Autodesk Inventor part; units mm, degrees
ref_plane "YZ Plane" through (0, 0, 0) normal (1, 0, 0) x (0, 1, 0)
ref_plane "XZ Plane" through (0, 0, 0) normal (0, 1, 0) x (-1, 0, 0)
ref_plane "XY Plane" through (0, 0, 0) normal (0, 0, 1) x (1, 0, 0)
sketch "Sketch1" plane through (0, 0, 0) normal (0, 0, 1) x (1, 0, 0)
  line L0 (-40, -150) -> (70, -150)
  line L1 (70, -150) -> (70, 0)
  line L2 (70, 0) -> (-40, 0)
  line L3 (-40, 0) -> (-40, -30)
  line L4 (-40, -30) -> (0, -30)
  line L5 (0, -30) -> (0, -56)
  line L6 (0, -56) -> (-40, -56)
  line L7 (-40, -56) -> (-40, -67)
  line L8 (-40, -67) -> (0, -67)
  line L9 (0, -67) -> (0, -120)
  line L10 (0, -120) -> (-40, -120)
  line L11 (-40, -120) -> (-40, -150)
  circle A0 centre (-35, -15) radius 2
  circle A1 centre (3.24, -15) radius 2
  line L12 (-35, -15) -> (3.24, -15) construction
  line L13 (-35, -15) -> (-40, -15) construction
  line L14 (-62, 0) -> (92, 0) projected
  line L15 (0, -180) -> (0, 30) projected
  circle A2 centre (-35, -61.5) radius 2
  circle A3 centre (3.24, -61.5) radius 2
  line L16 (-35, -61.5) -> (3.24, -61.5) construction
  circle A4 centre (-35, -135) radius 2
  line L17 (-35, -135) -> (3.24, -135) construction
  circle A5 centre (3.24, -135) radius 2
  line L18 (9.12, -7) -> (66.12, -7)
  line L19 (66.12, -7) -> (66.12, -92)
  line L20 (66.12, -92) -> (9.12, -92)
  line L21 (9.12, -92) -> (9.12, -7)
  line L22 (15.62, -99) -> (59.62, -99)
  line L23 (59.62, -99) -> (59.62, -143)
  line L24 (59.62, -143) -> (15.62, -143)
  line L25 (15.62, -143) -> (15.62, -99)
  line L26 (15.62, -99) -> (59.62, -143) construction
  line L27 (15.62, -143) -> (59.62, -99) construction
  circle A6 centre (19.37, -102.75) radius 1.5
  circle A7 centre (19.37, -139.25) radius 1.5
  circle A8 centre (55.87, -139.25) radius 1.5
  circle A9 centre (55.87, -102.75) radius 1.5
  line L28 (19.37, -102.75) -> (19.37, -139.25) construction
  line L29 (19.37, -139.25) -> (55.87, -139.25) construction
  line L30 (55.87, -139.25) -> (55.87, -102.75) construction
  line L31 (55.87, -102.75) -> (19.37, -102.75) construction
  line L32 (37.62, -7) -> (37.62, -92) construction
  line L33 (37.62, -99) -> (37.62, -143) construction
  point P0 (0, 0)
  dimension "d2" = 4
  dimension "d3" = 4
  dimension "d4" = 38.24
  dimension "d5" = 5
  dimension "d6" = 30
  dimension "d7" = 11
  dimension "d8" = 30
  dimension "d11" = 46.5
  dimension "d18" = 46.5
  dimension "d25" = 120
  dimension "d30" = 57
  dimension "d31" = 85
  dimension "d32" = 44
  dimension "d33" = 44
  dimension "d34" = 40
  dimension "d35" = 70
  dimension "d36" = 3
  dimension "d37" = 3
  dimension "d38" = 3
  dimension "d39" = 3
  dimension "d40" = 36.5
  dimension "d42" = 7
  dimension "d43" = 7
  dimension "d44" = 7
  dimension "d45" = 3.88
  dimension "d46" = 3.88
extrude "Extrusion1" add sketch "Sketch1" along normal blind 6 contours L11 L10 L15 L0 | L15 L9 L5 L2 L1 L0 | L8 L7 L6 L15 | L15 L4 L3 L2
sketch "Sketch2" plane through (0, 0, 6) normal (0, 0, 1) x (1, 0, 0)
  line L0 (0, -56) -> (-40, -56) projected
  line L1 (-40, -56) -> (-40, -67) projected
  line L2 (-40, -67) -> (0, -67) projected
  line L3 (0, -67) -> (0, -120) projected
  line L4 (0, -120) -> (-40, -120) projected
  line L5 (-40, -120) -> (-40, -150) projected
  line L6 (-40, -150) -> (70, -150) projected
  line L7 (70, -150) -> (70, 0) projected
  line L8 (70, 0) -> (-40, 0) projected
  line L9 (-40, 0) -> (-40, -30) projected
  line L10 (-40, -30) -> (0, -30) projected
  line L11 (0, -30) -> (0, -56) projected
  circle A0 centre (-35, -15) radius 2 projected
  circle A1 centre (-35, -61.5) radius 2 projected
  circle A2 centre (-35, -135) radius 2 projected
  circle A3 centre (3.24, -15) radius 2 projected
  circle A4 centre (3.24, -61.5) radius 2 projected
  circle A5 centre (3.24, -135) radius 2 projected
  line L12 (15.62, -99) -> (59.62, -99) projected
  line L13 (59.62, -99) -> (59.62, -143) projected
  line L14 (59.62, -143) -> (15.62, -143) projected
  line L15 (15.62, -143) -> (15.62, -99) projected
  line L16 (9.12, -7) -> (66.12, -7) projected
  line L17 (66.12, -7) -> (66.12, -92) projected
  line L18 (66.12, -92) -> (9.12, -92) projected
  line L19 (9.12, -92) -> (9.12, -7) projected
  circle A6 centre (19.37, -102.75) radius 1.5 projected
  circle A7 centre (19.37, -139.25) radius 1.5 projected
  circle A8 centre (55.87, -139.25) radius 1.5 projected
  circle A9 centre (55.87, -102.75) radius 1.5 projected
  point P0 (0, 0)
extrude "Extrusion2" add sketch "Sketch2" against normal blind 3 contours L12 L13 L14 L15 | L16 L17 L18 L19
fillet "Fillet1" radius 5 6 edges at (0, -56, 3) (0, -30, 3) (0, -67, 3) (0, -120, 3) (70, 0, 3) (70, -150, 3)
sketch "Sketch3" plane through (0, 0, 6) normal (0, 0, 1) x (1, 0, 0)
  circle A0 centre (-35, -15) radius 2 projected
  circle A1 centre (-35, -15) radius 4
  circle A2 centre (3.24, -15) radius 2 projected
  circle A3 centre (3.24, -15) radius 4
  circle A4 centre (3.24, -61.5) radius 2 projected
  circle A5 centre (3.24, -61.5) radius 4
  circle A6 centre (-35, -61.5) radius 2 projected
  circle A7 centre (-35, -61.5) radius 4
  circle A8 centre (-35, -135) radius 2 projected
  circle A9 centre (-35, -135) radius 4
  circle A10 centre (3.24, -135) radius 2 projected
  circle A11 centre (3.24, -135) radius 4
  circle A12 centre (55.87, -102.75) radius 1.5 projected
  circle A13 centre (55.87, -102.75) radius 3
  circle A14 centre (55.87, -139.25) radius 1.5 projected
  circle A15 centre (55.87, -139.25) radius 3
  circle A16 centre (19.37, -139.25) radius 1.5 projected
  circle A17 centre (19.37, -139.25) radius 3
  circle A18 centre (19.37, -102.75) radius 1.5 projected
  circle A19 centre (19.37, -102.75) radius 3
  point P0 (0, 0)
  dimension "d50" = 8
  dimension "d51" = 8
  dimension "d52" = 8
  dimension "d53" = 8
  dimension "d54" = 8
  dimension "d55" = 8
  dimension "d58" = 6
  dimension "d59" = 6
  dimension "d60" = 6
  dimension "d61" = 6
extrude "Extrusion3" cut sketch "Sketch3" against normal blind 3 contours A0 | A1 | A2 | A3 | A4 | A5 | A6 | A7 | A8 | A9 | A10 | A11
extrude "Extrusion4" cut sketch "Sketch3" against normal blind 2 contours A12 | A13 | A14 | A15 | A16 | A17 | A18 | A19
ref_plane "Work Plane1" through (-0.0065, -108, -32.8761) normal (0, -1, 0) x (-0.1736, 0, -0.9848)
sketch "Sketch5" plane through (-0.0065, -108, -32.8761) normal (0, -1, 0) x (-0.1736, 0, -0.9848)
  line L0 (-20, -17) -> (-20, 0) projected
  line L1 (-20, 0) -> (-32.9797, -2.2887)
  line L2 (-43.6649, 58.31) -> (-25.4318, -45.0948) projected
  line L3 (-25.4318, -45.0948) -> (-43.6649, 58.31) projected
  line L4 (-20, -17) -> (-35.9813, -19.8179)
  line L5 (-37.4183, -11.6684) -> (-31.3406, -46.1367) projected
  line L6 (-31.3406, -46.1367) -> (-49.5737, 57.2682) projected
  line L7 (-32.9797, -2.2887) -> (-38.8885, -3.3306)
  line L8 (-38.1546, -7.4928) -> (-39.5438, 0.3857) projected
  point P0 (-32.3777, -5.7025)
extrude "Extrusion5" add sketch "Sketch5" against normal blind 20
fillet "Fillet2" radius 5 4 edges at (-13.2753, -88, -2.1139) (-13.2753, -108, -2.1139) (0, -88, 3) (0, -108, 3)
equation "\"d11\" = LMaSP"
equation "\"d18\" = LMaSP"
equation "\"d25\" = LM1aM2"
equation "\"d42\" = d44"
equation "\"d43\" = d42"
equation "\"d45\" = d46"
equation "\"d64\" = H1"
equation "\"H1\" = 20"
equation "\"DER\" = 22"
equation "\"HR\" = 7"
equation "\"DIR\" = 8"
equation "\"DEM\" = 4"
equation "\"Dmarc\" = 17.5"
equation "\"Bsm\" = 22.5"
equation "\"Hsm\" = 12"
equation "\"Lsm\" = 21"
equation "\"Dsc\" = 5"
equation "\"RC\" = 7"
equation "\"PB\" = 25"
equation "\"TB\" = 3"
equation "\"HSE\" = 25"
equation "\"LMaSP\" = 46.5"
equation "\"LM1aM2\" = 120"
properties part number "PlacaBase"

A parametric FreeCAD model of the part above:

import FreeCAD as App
import Part
import Sketcher
Q = App.Units.Quantity


def edges_at(feature, points):
    """Names of the edges that pass closest to the given points."""
    edges = feature.Shape.Edges
    near = lambda p: min(range(len(edges)), key=lambda i: edges[i].distToShape(Part.Vertex(*p))[0])
    return sorted({f"Edge{near(p) + 1}" for p in points})


def add_polygon(sketch, points):
    """Adds a closed chain of lines whose ends are joined by coincident constraints."""
    first, n = sketch.GeometryCount, len(points)
    for a, b in zip(points, points[1:] + points[:1]):
        sketch.addGeometry(Part.LineSegment(App.Vector(*a, 0), App.Vector(*b, 0)), False)
    for i in range(n):
        sketch.addConstraint(Sketcher.Constraint("Coincident", first + i, 2, first + (i + 1) % n, 1))

doc = App.newDocument("Part")
body = doc.addObject("PartDesign::Body", "Body")

# Sketch on XY plane
sketch1 = body.newObject("Sketcher::SketchObject", "Sketch")
sketch1.AttachmentSupport = (doc.getObject("XY_Plane"), [""])
sketch1.MapMode = "FlatFace"
add_polygon(sketch1, [(-40, -120), (-40, -150), (70, -150), (70, 0), (-40, 0), (-40, -30), (0, -30), (0, -56), (-40, -56), (-40, -67), (0, -67), (0, -120)])  # lines 0-11
sketch1.addGeometry(Part.Circle(App.Vector(-35, -135, 0), App.Vector(0, 0, 1), 2), False)  # 12
add_polygon(sketch1, [(9.12, -7), (66.12, -7), (66.12, -92), (9.12, -92)])  # lines 13-16
sketch1.addGeometry(Part.Circle(App.Vector(3.24, -135, 0), App.Vector(0, 0, 1), 2), False)  # 17
add_polygon(sketch1, [(15.62, -143), (15.62, -99), (59.62, -99), (59.62, -143)])  # lines 18-21
sketch1.addGeometry(Part.Circle(App.Vector(3.24, -61.5, 0), App.Vector(0, 0, 1), 2), False)  # 22
sketch1.addGeometry(Part.Circle(App.Vector(3.24, -15, 0), App.Vector(0, 0, 1), 2), False)  # 23
sketch1.addGeometry(Part.Circle(App.Vector(-35, -61.5, 0), App.Vector(0, 0, 1), 2), False)  # 24
sketch1.addGeometry(Part.Circle(App.Vector(-35, -15, 0), App.Vector(0, 0, 1), 2), False)  # 25
sketch1.addConstraint([
    Sketcher.Constraint("Vertical", 0),
    Sketcher.Constraint("Horizontal", 1),
    Sketcher.Constraint("Vertical", 2),
    Sketcher.Constraint("Horizontal", 3),
    Sketcher.Constraint("Vertical", 4),
    Sketcher.Constraint("Horizontal", 5),
    Sketcher.Constraint("Vertical", 6),
    Sketcher.Constraint("Horizontal", 7),
    Sketcher.Constraint("Vertical", 8),
    Sketcher.Constraint("Horizontal", 9),
    Sketcher.Constraint("Vertical", 10),
    Sketcher.Constraint("Horizontal", 11),
    Sketcher.Constraint("Horizontal", 13),
    Sketcher.Constraint("Vertical", 14),
    Sketcher.Constraint("Horizontal", 15),
    Sketcher.Constraint("Vertical", 16),
    Sketcher.Constraint("Vertical", 18),
    Sketcher.Constraint("Horizontal", 19),
    Sketcher.Constraint("Vertical", 20),
    Sketcher.Constraint("Horizontal", 21),
    Sketcher.Constraint("Equal", 12, 17),
    Sketcher.Constraint("Equal", 17, 22),
    Sketcher.Constraint("Equal", 22, 23),
    Sketcher.Constraint("Equal", 23, 24),
    Sketcher.Constraint("Equal", 24, 25),
    Sketcher.Constraint("PointOnObject", 2, 2, -1),
    Sketcher.Constraint("PointOnObject", 5, 2, -2),
    Sketcher.Constraint("PointOnObject", 9, 2, -2),
    Sketcher.Constraint("Horizontal", 12, 3, 17, 3),
    Sketcher.Constraint("Horizontal", 22, 3, 24, 3),
    Sketcher.Constraint("Horizontal", 23, 3, 25, 3),
    Sketcher.Constraint("Vertical", 17, 3, 22, 3),
    Sketcher.Constraint("Vertical", 22, 3, 23, 3),
    Sketcher.Constraint("Vertical", 12, 3, 24, 3),
    Sketcher.Constraint("Vertical", 24, 3, 25, 3),
    Sketcher.Constraint("Vertical", 0, 2, 3, 2),
    Sketcher.Constraint("Vertical", 4, 2, 7, 2),
    Sketcher.Constraint("Equal", 0, 4),
    Sketcher.Constraint("Equal", 21, 18),
    Sketcher.Constraint("Diameter", 12, 4.0),
    Sketcher.Constraint("DistanceX", 5, 1, 5, 2, 40.0),
    Sketcher.Constraint("DistanceX", 13, 1, 13, 2, 57.0),
    Sketcher.Constraint("DistanceX", 19, 1, 19, 2, 44.0),
    Sketcher.Constraint("DistanceY", 0, 2, 0, 1, 30.0),
    Sketcher.Constraint("DistanceY", 8, 2, 8, 1, 11.0),
    Sketcher.Constraint("DistanceY", 14, 2, 14, 1, 85.0),
    Sketcher.Constraint("DistanceX", -1, 1, 1, 2, 70.0),
    Sketcher.Constraint("DistanceY", 10, 2, -1, 1, 120.0),
    Sketcher.Constraint("DistanceY", 13, 2, -1, 1, 7.0),
    Sketcher.Constraint("DistanceY", 17, 3, 23, 3, 120.0),
    Sketcher.Constraint("DistanceX", 0, 2, 12, 3, 5.0),
    Sketcher.Constraint("DistanceY", 18, 2, 15, 2, 7.0),
    Sketcher.Constraint("DistanceY", 22, 3, 23, 3, 46.5),
    Sketcher.Constraint("DistanceY", 6, 2, 6, 1, 26.0),
    Sketcher.Constraint("DistanceX", 12, 3, 17, 3, 38.24),
    Sketcher.Constraint("DistanceX", 13, 2, 2, 2, 3.88),
    Sketcher.Constraint("DistanceY", 12, 3, -1, 1, 135.0),
    Sketcher.Constraint("DistanceX", 15, 2, 18, 2, 6.5),
])
pad1 = body.newObject("PartDesign::Pad", "Pad")
pad1.Profile = sketch1
pad1.Length = 6

# Sketch on XY plane
sketch2 = body.newObject("Sketcher::SketchObject", "Sketch001")
sketch2.AttachmentSupport = (doc.getObject("XY_Plane"), [""])
sketch2.MapMode = "FlatFace"
sketch2.AttachmentOffset = App.Placement(App.Vector(0, 0, 6), App.Rotation())
add_polygon(sketch2, [(59.62, -99), (15.62, -99), (15.62, -143), (59.62, -143)])  # lines 0-3
sketch2.addGeometry(Part.Circle(App.Vector(19.37, -139.25, 0), App.Vector(0, 0, 1), 1.5), False)  # 4
sketch2.addGeometry(Part.Circle(App.Vector(55.87, -139.25, 0), App.Vector(0, 0, 1), 1.5), False)  # 5
sketch2.addGeometry(Part.Circle(App.Vector(19.37, -102.75, 0), App.Vector(0, 0, 1), 1.5), False)  # 6
sketch2.addGeometry(Part.Circle(App.Vector(55.87, -102.75, 0), App.Vector(0, 0, 1), 1.5), False)  # 7
add_polygon(sketch2, [(66.12, -7), (9.12, -7), (9.12, -92), (66.12, -92)])  # lines 8-11
sketch2.addConstraint([
    Sketcher.Constraint("Horizontal", 0),
    Sketcher.Constraint("Vertical", 1),
    Sketcher.Constraint("Horizontal", 2),
    Sketcher.Constraint("Vertical", 3),
    Sketcher.Constraint("Horizontal", 8),
    Sketcher.Constraint("Vertical", 9),
    Sketcher.Constraint("Horizontal", 10),
    Sketcher.Constraint("Vertical", 11),
    Sketcher.Constraint("Equal", 4, 5),
    Sketcher.Constraint("Equal", 5, 6),
    Sketcher.Constraint("Equal", 6, 7),
    Sketcher.Constraint("Horizontal", 4, 3, 5, 3),
    Sketcher.Constraint("Horizontal", 6, 3, 7, 3),
    Sketcher.Constraint("Vertical", 4, 3, 6, 3),
    Sketcher.Constraint("Vertical", 5, 3, 7, 3),
    Sketcher.Constraint("Equal", 2, 1),
    Sketcher.Constraint("Diameter", 4, 3.0),
    Sketcher.Constraint("DistanceX", 0, 2, 0, 1, 44.0),
    Sketcher.Constraint("DistanceX", 8, 2, 8, 1, 57.0),
    Sketcher.Constraint("DistanceY", 9, 2, 9, 1, 85.0),
    Sketcher.Constraint("DistanceY", 0, 2, -1, 1, 99.0),
    Sketcher.Constraint("DistanceY", 8, 2, -1, 1, 7.0),
    Sketcher.Constraint("DistanceX", 4, 3, 5, 3, 36.5),
    Sketcher.Constraint("DistanceY", 4, 3, 6, 3, 36.5),
    Sketcher.Constraint("DistanceX", 8, 2, 0, 2, 6.5),
    Sketcher.Constraint("DistanceX", -1, 1, 4, 3, 19.37),
    Sketcher.Constraint("DistanceY", 4, 3, -1, 1, 139.25),
    Sketcher.Constraint("DistanceX", -1, 1, 0, 2, 15.62),
])
pad2 = body.newObject("PartDesign::Pad", "Pad001")
pad2.Profile = sketch2
pad2.Length = 3
pad2.Reversed = True
doc.recompute()

fillet = body.newObject("PartDesign::Fillet", "Fillet")
fillet.Base = (pad2, edges_at(pad2, [
    (0, -56, 3),
    (0, -30, 3),
    (0, -67, 3),
    (0, -120, 3),
    (70, 0, 3),
    (70, -150, 3),
]))
fillet.Radius = 5

# Sketch on XY plane
sketch3 = body.newObject("Sketcher::SketchObject", "Sketch002")
sketch3.AttachmentSupport = (doc.getObject("XY_Plane"), [""])
sketch3.MapMode = "FlatFace"
sketch3.AttachmentOffset = App.Placement(App.Vector(0, 0, 6), App.Rotation())
sketch3.addGeometry([
    Part.Circle(App.Vector(-35, -15, 0), App.Vector(0, 0, 1), 4),  # 0
    Part.Circle(App.Vector(3.24, -15, 0), App.Vector(0, 0, 1), 4),  # 1
    Part.Circle(App.Vector(3.24, -61.5, 0), App.Vector(0, 0, 1), 4),  # 2
    Part.Circle(App.Vector(-35, -61.5, 0), App.Vector(0, 0, 1), 4),  # 3
    Part.Circle(App.Vector(-35, -135, 0), App.Vector(0, 0, 1), 4),  # 4
    Part.Circle(App.Vector(3.24, -135, 0), App.Vector(0, 0, 1), 4),  # 5
], False)
sketch3.addConstraint([
    Sketcher.Constraint("Equal", 0, 1),
    Sketcher.Constraint("Equal", 1, 2),
    Sketcher.Constraint("Equal", 2, 3),
    Sketcher.Constraint("Equal", 3, 4),
    Sketcher.Constraint("Equal", 4, 5),
    Sketcher.Constraint("Horizontal", 0, 3, 1, 3),
    Sketcher.Constraint("Horizontal", 2, 3, 3, 3),
    Sketcher.Constraint("Horizontal", 4, 3, 5, 3),
    Sketcher.Constraint("Vertical", 1, 3, 2, 3),
    Sketcher.Constraint("Vertical", 0, 3, 3, 3),
    Sketcher.Constraint("Vertical", 3, 3, 4, 3),
    Sketcher.Constraint("Vertical", 2, 3, 5, 3),
    Sketcher.Constraint("Diameter", 0, 8.0),
    Sketcher.Constraint("DistanceX", 0, 3, -1, 1, 35.0),
    Sketcher.Constraint("DistanceY", 0, 3, -1, 1, 15.0),
    Sketcher.Constraint("DistanceY", 4, 3, -1, 1, 135.0),
    Sketcher.Constraint("DistanceY", 2, 3, -1, 1, 61.5),
    Sketcher.Constraint("DistanceX", -1, 1, 1, 3, 3.24),
])
pocket1 = body.newObject("PartDesign::Pocket", "Pocket")
pocket1.Profile = sketch3
pocket1.Length = 3

# Sketch on XY plane
sketch4 = body.newObject("Sketcher::SketchObject", "Sketch003")
sketch4.AttachmentSupport = (doc.getObject("XY_Plane"), [""])
sketch4.MapMode = "FlatFace"
sketch4.AttachmentOffset = App.Placement(App.Vector(0, 0, 6), App.Rotation())
sketch4.addGeometry([
    Part.Circle(App.Vector(55.87, -102.75, 0), App.Vector(0, 0, 1), 3),
    Part.Circle(App.Vector(55.87, -139.25, 0), App.Vector(0, 0, 1), 3),
    Part.Circle(App.Vector(19.37, -139.25, 0), App.Vector(0, 0, 1), 3),
    Part.Circle(App.Vector(19.37, -102.75, 0), App.Vector(0, 0, 1), 3),
], False)
sketch4.addConstraint([
    Sketcher.Constraint("Equal", 0, 1),
    Sketcher.Constraint("Equal", 1, 2),
    Sketcher.Constraint("Equal", 2, 3),
    Sketcher.Constraint("Horizontal", 1, 3, 2, 3),
    Sketcher.Constraint("Horizontal", 0, 3, 3, 3),
    Sketcher.Constraint("Vertical", 0, 3, 1, 3),
    Sketcher.Constraint("Vertical", 2, 3, 3, 3),
    Sketcher.Constraint("Diameter", 0, 6.0),
    Sketcher.Constraint("DistanceY", 1, 3, 0, 3, 36.5),
    Sketcher.Constraint("DistanceX", 2, 3, 1, 3, 36.5),
    Sketcher.Constraint("DistanceX", -1, 1, 0, 3, 55.87),
    Sketcher.Constraint("DistanceY", 0, 3, -1, 1, 102.75),
])
pocket2 = body.newObject("PartDesign::Pocket", "Pocket001")
pocket2.Profile = sketch4
pocket2.Length = 2

# Sketch on XZ plane
sketch5 = body.newObject("Sketcher::SketchObject", "Sketch004")
sketch5.AttachmentSupport = (doc.getObject("XZ_Plane"), [""])
sketch5.MapMode = "FlatFace"
sketch5.AttachmentOffset = App.Placement(App.Vector(0, 0, 108), App.Rotation())
add_polygon(sketch5, [(-13.275268, -10.227926), (3.466464, -13.179945), (3.466435, -0.000007), (3.466416, 5.999949), (-13.275234, 5.999905)])  # lines 0-4
sketch5.addConstraint([
    Sketcher.Constraint("Vertical", 1),
    Sketcher.Constraint("Vertical", 2),
    Sketcher.Constraint("Horizontal", 3),
    Sketcher.Constraint("Vertical", 4),
    Sketcher.Constraint("PointOnObject", 1, 2, -1),
    Sketcher.Constraint("DistanceY", 2, 1, 2, 2, 6.0),
    Sketcher.Constraint("Angle", 0, Q("-10 deg")),
    Sketcher.Constraint("Distance", 0, 17.0),
    Sketcher.Constraint("DistanceY", 1, 1, 1, 2, 13.18),
    Sketcher.Constraint("DistanceX", -1, 1, 0, 2, 3.4665),
])
pad3 = body.newObject("PartDesign::Pad", "Pad002")
pad3.Profile = sketch5
pad3.Length = 20
pad3.Reversed = True
doc.recompute()

fillet2 = body.newObject("PartDesign::Fillet", "Fillet001")
fillet2.Base = (pad3, edges_at(pad3, [
    (-13.275, -88, -2.114),
    (-13.275, -108, -2.114),
    (0, -88, 3),
    (0, -108, 3),
]))
fillet2.Radius = 5

doc.recompute()
